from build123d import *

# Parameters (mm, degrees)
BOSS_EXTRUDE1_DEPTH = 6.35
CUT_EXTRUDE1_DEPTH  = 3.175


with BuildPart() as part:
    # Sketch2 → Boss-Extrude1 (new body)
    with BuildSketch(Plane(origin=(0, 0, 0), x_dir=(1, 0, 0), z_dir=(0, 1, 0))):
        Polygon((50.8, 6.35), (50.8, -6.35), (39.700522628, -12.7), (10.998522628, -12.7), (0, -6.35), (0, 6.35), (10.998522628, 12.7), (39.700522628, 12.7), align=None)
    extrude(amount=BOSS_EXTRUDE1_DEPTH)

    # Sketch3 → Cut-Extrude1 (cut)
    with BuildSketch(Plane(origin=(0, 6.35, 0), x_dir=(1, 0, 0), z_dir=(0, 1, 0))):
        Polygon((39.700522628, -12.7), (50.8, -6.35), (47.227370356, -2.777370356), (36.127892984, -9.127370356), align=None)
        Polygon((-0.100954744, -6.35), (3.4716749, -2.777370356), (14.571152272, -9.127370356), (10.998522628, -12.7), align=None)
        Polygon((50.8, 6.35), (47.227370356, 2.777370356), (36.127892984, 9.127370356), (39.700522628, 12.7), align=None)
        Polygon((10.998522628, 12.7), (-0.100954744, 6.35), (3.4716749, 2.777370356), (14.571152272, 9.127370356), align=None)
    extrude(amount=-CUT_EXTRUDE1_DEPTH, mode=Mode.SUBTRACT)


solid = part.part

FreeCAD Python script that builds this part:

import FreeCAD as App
import Part
import Sketcher
from FreeCAD import Vector
Q = App.Units.Quantity


def add_polygon(sketch, points):
    """Adds a closed chain of lines whose ends are joined by coincident constraints."""
    first, n = sketch.GeometryCount, len(points)
    for a, b in zip(points, points[1:] + points[:1]):
        sketch.addGeometry(Part.LineSegment(App.Vector(*a, 0), App.Vector(*b, 0)), False)
    for i in range(n):
        sketch.addConstraint(Sketcher.Constraint("Coincident", first + i, 2, first + (i + 1) % n, 1))

doc = App.newDocument("Part")
body = doc.addObject("PartDesign::Body", "Body")

# Sketch on XZ plane
sketch1 = body.newObject("Sketcher::SketchObject", "Sketch")
sketch1.AttachmentSupport = (doc.getObject("XZ_Plane"), [""])
sketch1.MapMode = "FlatFace"
add_polygon(sketch1, [(51, 6), (51, -6), (40, -13), (11, -13), (0, -6), (0, 6), (11, 13), (40, 13)])  # lines 0-7
sketch1.addConstraint(Sketcher.Constraint("Vertical", 0))
sketch1.addConstraint(Sketcher.Constraint("Horizontal", 2))
sketch1.addConstraint(Sketcher.Constraint("Vertical", 4))
sketch1.addConstraint(Sketcher.Constraint("Horizontal", 6))
sketch1.addConstraint(Sketcher.Constraint("Symmetric", 3, 2, 4, 2, -1, 1))
sketch1.addConstraint(Sketcher.Constraint("Symmetric", 2, 2, 5, 2, -1))
sketch1.addConstraint(Sketcher.Constraint("Horizontal", 0, 2, 3, 2))
sketch1.addConstraint(Sketcher.Constraint("Horizontal", 4, 2, 7, 2))
sketch1.addConstraint(Sketcher.Constraint("Vertical", 1, 2, 6, 2))
sketch1.addConstraint(Sketcher.Constraint("DistanceY", 0, 2, 0, 1, Q("0.5 in")))
sketch1.addConstraint(Sketcher.Constraint("DistanceX", -1, 1, 0, 2, Q("2 in")))
sketch1.addConstraint(Sketcher.Constraint("Angle", 3, Q("150 deg")))
sketch1.addConstraint(Sketcher.Constraint("DistanceY", 2, 2, 5, 2, Q("1 in")))
sketch1.addConstraint(Sketcher.Constraint("DistanceX", 2, 2, 2, 1, Q("1.13 in")))
pad1 = body.newObject("PartDesign::Pad", "Pad")
pad1.Profile = sketch1
pad1.Length = Q("0.25 in")
pad1.Reversed = True

# Sketch on XZ plane
sketch2 = body.newObject("Sketcher::SketchObject", "Sketch001")
sketch2.AttachmentSupport = (doc.getObject("XZ_Plane"), [""])
sketch2.MapMode = "FlatFace"
sketch2.AttachmentOffset = App.Placement(Vector(0, 0, -0.25 * 25.4), App.Rotation())
add_polygon(sketch2, [(40, 13), (51, 6), (47, 3), (36, 9)])  # lines 0-3
add_polygon(sketch2, [(3, 3), (0, 6), (11, 13), (15, 9)])  # lines 4-7
add_polygon(sketch2, [(47, -3), (51, -6), (40, -13), (36, -9)])  # lines 8-11
add_polygon(sketch2, [(11, -13), (0, -6), (3, -3), (15, -9)])  # lines 12-15
sketch2.addConstraint(Sketcher.Constraint("Symmetric", 0, 2, 8, 2, -1))
sketch2.addConstraint(Sketcher.Constraint("Symmetric", 3, 2, 9, 2, -1))
sketch2.addConstraint(Sketcher.Constraint("Symmetric", 2, 2, 10, 2, -1))
sketch2.addConstraint(Sketcher.Constraint("Symmetric", 1, 2, 11, 2, -1))
sketch2.addConstraint(Sketcher.Constraint("Symmetric", 4, 2, 12, 2, -1))
sketch2.addConstraint(Sketcher.Constraint("Symmetric", 7, 2, 13, 2, -1))
sketch2.addConstraint(Sketcher.Constraint("Symmetric", 6, 2, 14, 2, -1))
sketch2.addConstraint(Sketcher.Constraint("Symmetric", 5, 2, 15, 2, -1))
sketch2.addConstraint(Sketcher.Constraint("Parallel", 0, 2))
sketch2.addConstraint(Sketcher.Constraint("Parallel", 1, 3))
sketch2.addConstraint(Sketcher.Constraint("Perpendicular", 3, 4))
sketch2.addConstraint(Sketcher.Constraint("Parallel", 4, 6))
sketch2.addConstraint(Sketcher.Constraint("Parallel", 5, 7))
sketch2.addConstraint(Sketcher.Constraint("Parallel", 6, 8))
sketch2.addConstraint(Sketcher.Constraint("Parallel", 7, 9))
sketch2.addConstraint(Sketcher.Constraint("Horizontal", 0, 2, 4, 2))
sketch2.addConstraint(Sketcher.Constraint("Horizontal", 3, 2, 5, 2))
sketch2.addConstraint(Sketcher.Constraint("Horizontal", 2, 2, 6, 2))
sketch2.addConstraint(Sketcher.Constraint("DistanceX", -1, 1, 0, 2, Q("2 in")))
sketch2.addConstraint(Sketcher.Constraint("DistanceY", 9, 2, 3, 2, Q("1 in")))
sketch2.addConstraint(Sketcher.Constraint("DistanceY", 8, 2, 0, 2, Q("0.5 in")))
sketch2.addConstraint(Sketcher.Constraint("DistanceX", 5, 2, 3, 2, Q("1.13 in")))
sketch2.addConstraint(Sketcher.Constraint("Distance", 0, Q("12.787529 mm")))
sketch2.addConstraint(Sketcher.Constraint("Distance", 1, Q("5.052461 mm")))
pocket1 = body.newObject("PartDesign::Pocket", "Pocket")
pocket1.Profile = sketch2
pocket1.Length = Q("0.125 in")
pocket1.Reversed = True

doc.recompute()
